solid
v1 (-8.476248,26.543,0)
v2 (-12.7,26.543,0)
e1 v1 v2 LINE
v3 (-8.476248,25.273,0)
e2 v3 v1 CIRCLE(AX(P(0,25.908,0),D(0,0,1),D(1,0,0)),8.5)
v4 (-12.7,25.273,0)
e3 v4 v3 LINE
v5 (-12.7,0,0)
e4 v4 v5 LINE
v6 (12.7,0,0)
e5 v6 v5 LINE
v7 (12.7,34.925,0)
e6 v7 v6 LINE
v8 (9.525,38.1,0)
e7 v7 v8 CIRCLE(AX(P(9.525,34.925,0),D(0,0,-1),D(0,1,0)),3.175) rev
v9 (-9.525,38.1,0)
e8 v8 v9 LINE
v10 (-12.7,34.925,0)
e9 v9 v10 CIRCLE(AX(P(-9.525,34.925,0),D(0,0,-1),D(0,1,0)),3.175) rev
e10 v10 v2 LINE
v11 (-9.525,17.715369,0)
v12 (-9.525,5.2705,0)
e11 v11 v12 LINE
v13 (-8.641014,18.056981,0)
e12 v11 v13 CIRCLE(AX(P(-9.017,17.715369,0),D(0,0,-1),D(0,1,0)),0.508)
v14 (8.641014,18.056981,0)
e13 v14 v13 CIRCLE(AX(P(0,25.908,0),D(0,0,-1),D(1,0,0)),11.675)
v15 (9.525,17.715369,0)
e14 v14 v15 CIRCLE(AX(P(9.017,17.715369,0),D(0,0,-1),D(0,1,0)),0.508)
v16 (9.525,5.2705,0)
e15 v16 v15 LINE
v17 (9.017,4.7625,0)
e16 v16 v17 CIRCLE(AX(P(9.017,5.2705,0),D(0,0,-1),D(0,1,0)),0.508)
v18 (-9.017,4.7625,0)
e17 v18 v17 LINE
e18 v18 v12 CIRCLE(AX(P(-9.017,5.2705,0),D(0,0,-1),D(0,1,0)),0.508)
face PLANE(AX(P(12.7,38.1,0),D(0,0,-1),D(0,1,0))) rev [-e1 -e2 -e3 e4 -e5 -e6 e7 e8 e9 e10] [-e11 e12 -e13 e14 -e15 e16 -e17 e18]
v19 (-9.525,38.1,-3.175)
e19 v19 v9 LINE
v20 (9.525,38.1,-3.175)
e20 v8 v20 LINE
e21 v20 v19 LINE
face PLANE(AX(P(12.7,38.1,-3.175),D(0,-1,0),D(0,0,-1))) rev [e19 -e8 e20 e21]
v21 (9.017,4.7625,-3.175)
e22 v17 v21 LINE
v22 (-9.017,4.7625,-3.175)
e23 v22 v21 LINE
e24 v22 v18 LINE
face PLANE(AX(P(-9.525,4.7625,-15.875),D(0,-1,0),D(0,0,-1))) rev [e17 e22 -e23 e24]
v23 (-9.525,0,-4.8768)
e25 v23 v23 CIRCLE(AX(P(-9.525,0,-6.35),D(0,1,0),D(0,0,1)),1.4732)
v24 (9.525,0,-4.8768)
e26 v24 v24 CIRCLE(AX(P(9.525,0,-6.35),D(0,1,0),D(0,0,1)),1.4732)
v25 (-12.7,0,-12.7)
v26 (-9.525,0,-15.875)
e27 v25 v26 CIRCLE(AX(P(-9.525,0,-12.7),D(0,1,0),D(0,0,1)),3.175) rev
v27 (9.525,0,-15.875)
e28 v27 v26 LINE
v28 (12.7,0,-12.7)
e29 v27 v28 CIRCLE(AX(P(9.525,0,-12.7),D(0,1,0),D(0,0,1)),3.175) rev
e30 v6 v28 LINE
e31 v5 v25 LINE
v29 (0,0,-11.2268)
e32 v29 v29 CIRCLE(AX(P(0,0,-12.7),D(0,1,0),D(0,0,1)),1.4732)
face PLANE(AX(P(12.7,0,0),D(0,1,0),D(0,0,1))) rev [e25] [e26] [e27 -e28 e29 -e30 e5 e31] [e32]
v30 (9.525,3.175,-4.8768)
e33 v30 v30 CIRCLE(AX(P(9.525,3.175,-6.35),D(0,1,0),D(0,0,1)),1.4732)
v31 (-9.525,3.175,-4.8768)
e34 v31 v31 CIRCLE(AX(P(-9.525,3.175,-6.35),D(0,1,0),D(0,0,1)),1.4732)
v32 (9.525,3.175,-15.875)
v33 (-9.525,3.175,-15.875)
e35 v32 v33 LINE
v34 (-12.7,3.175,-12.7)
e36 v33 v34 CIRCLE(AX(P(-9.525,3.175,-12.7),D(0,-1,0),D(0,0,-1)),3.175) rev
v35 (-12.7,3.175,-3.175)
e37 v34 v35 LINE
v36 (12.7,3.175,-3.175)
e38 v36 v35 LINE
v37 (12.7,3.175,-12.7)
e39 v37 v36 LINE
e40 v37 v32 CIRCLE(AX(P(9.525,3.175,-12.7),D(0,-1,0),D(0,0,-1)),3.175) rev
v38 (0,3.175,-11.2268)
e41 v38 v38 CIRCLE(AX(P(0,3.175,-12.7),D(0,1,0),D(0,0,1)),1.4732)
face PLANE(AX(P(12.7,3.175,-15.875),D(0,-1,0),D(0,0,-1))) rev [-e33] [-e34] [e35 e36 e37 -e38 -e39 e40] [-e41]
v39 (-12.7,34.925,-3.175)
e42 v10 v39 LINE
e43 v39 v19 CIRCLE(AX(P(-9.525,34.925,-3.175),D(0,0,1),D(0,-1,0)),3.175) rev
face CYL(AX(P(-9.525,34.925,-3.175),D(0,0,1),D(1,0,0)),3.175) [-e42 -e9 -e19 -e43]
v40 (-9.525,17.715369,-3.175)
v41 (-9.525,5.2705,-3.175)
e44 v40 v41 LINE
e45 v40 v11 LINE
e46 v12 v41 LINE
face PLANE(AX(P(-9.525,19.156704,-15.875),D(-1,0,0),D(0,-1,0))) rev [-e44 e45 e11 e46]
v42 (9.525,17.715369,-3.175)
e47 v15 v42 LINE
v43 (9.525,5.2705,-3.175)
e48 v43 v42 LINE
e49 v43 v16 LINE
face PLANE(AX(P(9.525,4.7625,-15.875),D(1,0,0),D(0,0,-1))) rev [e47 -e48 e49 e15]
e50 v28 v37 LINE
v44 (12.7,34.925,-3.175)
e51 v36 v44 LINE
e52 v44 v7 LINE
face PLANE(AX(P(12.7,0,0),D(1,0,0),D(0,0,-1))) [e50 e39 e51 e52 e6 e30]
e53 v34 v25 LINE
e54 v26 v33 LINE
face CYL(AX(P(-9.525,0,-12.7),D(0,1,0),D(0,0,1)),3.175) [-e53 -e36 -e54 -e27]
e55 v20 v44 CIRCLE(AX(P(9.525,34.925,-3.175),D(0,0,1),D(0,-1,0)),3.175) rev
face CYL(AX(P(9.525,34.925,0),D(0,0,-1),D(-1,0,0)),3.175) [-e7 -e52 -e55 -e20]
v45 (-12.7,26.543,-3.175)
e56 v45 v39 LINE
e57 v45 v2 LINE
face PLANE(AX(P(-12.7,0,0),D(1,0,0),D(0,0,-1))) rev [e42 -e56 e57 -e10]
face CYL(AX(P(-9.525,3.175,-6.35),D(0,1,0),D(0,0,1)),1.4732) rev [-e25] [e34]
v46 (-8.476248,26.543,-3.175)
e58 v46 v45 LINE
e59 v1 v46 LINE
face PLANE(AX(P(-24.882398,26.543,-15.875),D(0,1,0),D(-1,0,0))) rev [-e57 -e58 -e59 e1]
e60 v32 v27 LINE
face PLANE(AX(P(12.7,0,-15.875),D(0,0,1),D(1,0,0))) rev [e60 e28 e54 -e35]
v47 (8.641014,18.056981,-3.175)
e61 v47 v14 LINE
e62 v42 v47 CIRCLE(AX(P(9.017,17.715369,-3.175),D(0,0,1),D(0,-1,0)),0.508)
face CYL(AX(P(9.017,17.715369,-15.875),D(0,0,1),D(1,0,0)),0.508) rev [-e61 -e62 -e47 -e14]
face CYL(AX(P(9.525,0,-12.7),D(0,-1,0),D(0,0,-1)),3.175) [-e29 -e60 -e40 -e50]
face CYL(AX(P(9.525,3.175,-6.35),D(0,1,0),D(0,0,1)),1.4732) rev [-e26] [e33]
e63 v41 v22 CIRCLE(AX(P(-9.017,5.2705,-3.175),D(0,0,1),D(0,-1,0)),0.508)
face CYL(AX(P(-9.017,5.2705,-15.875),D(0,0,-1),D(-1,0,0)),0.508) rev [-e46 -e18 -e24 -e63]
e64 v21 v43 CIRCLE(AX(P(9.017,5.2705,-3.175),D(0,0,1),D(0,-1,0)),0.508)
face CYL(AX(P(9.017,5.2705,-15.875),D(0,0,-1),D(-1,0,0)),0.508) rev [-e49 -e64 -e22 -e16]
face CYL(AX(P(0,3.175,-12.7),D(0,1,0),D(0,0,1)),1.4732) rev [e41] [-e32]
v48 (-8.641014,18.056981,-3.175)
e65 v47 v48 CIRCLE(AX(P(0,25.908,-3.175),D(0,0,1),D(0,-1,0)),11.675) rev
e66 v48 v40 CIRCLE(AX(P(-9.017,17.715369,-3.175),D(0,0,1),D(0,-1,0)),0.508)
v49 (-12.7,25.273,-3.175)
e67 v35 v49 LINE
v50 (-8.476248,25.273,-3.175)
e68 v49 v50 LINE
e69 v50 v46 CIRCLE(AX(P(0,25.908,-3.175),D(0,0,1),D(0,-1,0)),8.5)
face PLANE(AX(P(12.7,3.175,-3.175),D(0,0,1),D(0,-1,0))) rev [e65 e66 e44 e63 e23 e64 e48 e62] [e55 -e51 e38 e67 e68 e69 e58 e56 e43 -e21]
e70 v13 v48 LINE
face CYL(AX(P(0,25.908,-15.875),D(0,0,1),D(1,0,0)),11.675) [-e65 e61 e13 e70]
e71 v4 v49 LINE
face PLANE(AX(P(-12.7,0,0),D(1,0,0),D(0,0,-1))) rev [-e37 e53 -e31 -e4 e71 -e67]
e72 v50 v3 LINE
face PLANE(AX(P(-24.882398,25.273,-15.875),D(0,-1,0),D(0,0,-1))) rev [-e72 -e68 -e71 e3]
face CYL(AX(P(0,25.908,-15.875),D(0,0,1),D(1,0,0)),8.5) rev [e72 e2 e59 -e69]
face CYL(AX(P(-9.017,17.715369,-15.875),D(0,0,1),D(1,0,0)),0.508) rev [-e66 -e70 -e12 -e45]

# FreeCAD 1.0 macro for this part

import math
import FreeCAD as App
import Part
import Sketcher
from FreeCAD import Vector
Q = App.Units.Quantity


def edges_at(feature, points):
    """Names of the edges that pass closest to the given points."""
    edges = feature.Shape.Edges
    near = lambda p: min(range(len(edges)), key=lambda i: edges[i].distToShape(Part.Vertex(*p))[0])
    return sorted({f"Edge{near(p) + 1}" for p in points})

doc = App.newDocument("Part")
body = doc.addObject("PartDesign::Body", "Body")

sketch1 = body.newObject("Sketcher::SketchObject", "Sketch")
sketch1.AttachmentSupport = (doc.getObject("YZ_Plane"), [""])
sketch1.MapMode = "FlatFace"
sketch1.addGeometry([
    Part.LineSegment(Vector(38.1, 0, 0), Vector(0, 0, 0)),
    Part.LineSegment(Vector(0, 0, 0), Vector(0, -15.9, 0)),
    Part.LineSegment(Vector(0, -15.9, 0), Vector(3.2, -15.9, 0)),
    Part.LineSegment(Vector(3.2, -15.9, 0), Vector(3.2, -3.2, 0)),
    Part.LineSegment(Vector(3.2, -3.2, 0), Vector(38.1, -3.2, 0)),
    Part.LineSegment(Vector(38.1, -3.2, 0), Vector(38.1, 0, 0)),
], False)
sketch1.addConstraint([
    Sketcher.Constraint("Coincident", 0, 2, 1, 1),
    Sketcher.Constraint("Coincident", 1, 2, 2, 1),
    Sketcher.Constraint("Coincident", 2, 2, 3, 1),
    Sketcher.Constraint("Coincident", 3, 2, 4, 1),
    Sketcher.Constraint("Coincident", 4, 2, 5, 1),
    Sketcher.Constraint("Coincident", 5, 2, 0, 1),
    Sketcher.Constraint("Horizontal", 0),
    Sketcher.Constraint("Vertical", 1),
    Sketcher.Constraint("Horizontal", 2),
    Sketcher.Constraint("Vertical", 3),
    Sketcher.Constraint("Horizontal", 4),
    Sketcher.Constraint("Vertical", 5),
    Sketcher.Constraint("Coincident", 0, 2, -1, 1),
    Sketcher.Constraint("Equal", 2, 5),
    Sketcher.Constraint("DistanceX", 0, 2, 0, 1, Q("1.5 in")),
    Sketcher.Constraint("DistanceY", 3, 1, 3, 2, Q("0.5 in")),
    Sketcher.Constraint("DistanceX", 2, 1, 2, 2, Q("0.125 in")),
])
pad1 = body.newObject("PartDesign::Pad", "Pad")
pad1.Profile = sketch1
pad1.Length = Q("1 in")
pad1.Midplane = True

sketch2 = body.newObject("Sketcher::SketchObject", "Sketch001")
sketch2.AttachmentSupport = (doc.getObject("XY_Plane"), [""])
sketch2.MapMode = "FlatFace"
sketch2.addGeometry(Part.Circle(Vector(0, 26, 0), Vector(0, 0, 1), 8), False)
sketch2.addConstraint([
    Sketcher.Constraint("PointOnObject", 0, 3, -2),
    Sketcher.Constraint("Diameter", 0, Q("17 mm")),
    Sketcher.Constraint("DistanceY", -1, 1, 0, 3, Q("1.02 in")),
])
pocket1 = body.newObject("PartDesign::Pocket", "Pocket")
pocket1.Profile = sketch2
pocket1.Type = "ThroughAll"
doc.recompute()

fillet = body.newObject("PartDesign::Fillet", "Fillet")
fillet.Base = (pocket1, edges_at(pocket1, [
    (12.7, 1.587, -15.875),
    (12.7, 38.1, -1.587),
    (-12.7, 1.587, -15.875),
    (-12.7, 38.1, -1.587),
]))
fillet.Radius = Q("0.125 in")

sketch3 = body.newObject("Sketcher::SketchObject", "Sketch002")
sketch3.AttachmentSupport = (doc.getObject("XZ_Plane"), [""])
sketch3.MapMode = "FlatFace"
sketch3.AttachmentOffset = App.Placement(Vector(0, 0, -0.125 * 25.4), App.Rotation())
sketch3.addGeometry([
    Part.Circle(Vector(-9.5, -6.3, 0), Vector(0, 0, 1), 1.5),
    Part.Circle(Vector(0, -12.7, 0), Vector(0, 0, 1), 1.5),
    Part.Circle(Vector(9.5, -6.3, 0), Vector(0, 0, 1), 1.5),
], False)
sketch3.addConstraint([
    Sketcher.Constraint("Equal", 0, 1),
    Sketcher.Constraint("Equal", 1, 2),
    Sketcher.Constraint("Symmetric", 0, 3, 2, 3, -2),
    Sketcher.Constraint("PointOnObject", 1, 3, -2),
    Sketcher.Constraint("Diameter", 0, Q("0.116 in")),
    Sketcher.Constraint("DistanceY", 1, 3, -1, 1, Q("0.5 in")),
    Sketcher.Constraint("DistanceY", 0, 3, -1, 1, Q("0.25 in")),
    Sketcher.Constraint("DistanceX", 0, 3, 2, 3, Q("0.75 in")),
])
doc.recompute()
hole = body.newObject("PartDesign::Hole", "Hole")
hole.Profile = sketch3
hole.ThreadType = "None"
hole.Diameter = Q("0.116 in")
hole.DepthType = "ThroughAll"
hole.Reversed = True

sketch4 = body.newObject("Sketcher::SketchObject", "Sketch003")
sketch4.AttachmentSupport = (doc.getObject("XY_Plane"), [""])
sketch4.MapMode = "FlatFace"
sketch4.addGeometry([
    Part.LineSegment(Vector(-24.9, 26.5, 0), Vector(-24.9, 25.3, 0)),
    Part.LineSegment(Vector(-24.9, 25.3, 0), Vector(0, 25.3, 0)),
    Part.LineSegment(Vector(0, 25.3, 0), Vector(0, 26.5, 0)),
    Part.LineSegment(Vector(0, 26.5, 0), Vector(-24.9, 26.5, 0)),
], False)
sketch4.addConstraint([
    Sketcher.Constraint("Coincident", 0, 2, 1, 1),
    Sketcher.Constraint("Coincident", 1, 2, 2, 1),
    Sketcher.Constraint("Coincident", 2, 2, 3, 1),
    Sketcher.Constraint("Coincident", 3, 2, 0, 1),
    Sketcher.Constraint("Vertical", 0),
    Sketcher.Constraint("Horizontal", 1),
    Sketcher.Constraint("Vertical", 2),
    Sketcher.Constraint("Horizontal", 3),
    Sketcher.Constraint("PointOnObject", 1, 2, -2),
    Sketcher.Constraint("DistanceY", 0, 2, 0, 1, Q("0.05 in")),
    Sketcher.Constraint("DistanceY", -1, 1, 0, 2, Q("0.995 in")),
    Sketcher.Constraint("DistanceX", 1, 1, 1, 2, Q("24.882398 mm")),
])
pocket2 = body.newObject("PartDesign::Pocket", "Pocket001")
pocket2.Profile = sketch4
pocket2.Type = "ThroughAll"

sketch5 = body.newObject("Sketcher::SketchObject", "Sketch004")
sketch5.AttachmentSupport = (doc.getObject("XY_Plane"), [""])
sketch5.MapMode = "FlatFace"
sketch5.addGeometry([
    Part.LineSegment(Vector(-10, 19, 0), Vector(-10, 5, 0)),
    Part.LineSegment(Vector(-10, 5, 0), Vector(10, 5, 0)),
    Part.LineSegment(Vector(10, 5, 0), Vector(10, 19, 0)),
    Part.ArcOfCircle(Part.Circle(Vector(0, 26, 0), Vector(0, 0, 1), 12), math.radians(-145), math.radians(-35)),
], False)
sketch5.addConstraint([
    Sketcher.Constraint("Coincident", 0, 2, 1, 1),
    Sketcher.Constraint("Coincident", 1, 2, 2, 1),
    Sketcher.Constraint("Coincident", 2, 2, 3, 2),
    Sketcher.Constraint("Coincident", 3, 1, 0, 1),
    Sketcher.Constraint("Vertical", 0),
    Sketcher.Constraint("Horizontal", 1),
    Sketcher.Constraint("Vertical", 2),
    Sketcher.Constraint("Symmetric", 2, 2, 3, 1, -2),
    Sketcher.Constraint("DistanceX", 1, 1, 1, 2, Q("0.75 in")),
    Sketcher.Constraint("DistanceY", -1, 1, 3, 3, Q("1.02 in")),
    Sketcher.Constraint("Radius", 3, Q("11.675 mm")),
    Sketcher.Constraint("DistanceY", -1, 1, 0, 2, Q("0.1875 in")),
])
pocket3 = body.newObject("PartDesign::Pocket", "Pocket002")
pocket3.Profile = sketch5
pocket3.Type = "ThroughAll"
doc.recompute()

fillet2 = body.newObject("PartDesign::Fillet", "Fillet001")
fillet2.Base = (pocket3, edges_at(pocket3, [
    (-9.525, 19.157, -1.587),
    (9.525, 19.157, -1.587),
    (9.525, 4.763, -1.587),
    (-9.525, 4.763, -1.587),
]))
fillet2.Radius = Q("0.02 in")

doc.recompute()
